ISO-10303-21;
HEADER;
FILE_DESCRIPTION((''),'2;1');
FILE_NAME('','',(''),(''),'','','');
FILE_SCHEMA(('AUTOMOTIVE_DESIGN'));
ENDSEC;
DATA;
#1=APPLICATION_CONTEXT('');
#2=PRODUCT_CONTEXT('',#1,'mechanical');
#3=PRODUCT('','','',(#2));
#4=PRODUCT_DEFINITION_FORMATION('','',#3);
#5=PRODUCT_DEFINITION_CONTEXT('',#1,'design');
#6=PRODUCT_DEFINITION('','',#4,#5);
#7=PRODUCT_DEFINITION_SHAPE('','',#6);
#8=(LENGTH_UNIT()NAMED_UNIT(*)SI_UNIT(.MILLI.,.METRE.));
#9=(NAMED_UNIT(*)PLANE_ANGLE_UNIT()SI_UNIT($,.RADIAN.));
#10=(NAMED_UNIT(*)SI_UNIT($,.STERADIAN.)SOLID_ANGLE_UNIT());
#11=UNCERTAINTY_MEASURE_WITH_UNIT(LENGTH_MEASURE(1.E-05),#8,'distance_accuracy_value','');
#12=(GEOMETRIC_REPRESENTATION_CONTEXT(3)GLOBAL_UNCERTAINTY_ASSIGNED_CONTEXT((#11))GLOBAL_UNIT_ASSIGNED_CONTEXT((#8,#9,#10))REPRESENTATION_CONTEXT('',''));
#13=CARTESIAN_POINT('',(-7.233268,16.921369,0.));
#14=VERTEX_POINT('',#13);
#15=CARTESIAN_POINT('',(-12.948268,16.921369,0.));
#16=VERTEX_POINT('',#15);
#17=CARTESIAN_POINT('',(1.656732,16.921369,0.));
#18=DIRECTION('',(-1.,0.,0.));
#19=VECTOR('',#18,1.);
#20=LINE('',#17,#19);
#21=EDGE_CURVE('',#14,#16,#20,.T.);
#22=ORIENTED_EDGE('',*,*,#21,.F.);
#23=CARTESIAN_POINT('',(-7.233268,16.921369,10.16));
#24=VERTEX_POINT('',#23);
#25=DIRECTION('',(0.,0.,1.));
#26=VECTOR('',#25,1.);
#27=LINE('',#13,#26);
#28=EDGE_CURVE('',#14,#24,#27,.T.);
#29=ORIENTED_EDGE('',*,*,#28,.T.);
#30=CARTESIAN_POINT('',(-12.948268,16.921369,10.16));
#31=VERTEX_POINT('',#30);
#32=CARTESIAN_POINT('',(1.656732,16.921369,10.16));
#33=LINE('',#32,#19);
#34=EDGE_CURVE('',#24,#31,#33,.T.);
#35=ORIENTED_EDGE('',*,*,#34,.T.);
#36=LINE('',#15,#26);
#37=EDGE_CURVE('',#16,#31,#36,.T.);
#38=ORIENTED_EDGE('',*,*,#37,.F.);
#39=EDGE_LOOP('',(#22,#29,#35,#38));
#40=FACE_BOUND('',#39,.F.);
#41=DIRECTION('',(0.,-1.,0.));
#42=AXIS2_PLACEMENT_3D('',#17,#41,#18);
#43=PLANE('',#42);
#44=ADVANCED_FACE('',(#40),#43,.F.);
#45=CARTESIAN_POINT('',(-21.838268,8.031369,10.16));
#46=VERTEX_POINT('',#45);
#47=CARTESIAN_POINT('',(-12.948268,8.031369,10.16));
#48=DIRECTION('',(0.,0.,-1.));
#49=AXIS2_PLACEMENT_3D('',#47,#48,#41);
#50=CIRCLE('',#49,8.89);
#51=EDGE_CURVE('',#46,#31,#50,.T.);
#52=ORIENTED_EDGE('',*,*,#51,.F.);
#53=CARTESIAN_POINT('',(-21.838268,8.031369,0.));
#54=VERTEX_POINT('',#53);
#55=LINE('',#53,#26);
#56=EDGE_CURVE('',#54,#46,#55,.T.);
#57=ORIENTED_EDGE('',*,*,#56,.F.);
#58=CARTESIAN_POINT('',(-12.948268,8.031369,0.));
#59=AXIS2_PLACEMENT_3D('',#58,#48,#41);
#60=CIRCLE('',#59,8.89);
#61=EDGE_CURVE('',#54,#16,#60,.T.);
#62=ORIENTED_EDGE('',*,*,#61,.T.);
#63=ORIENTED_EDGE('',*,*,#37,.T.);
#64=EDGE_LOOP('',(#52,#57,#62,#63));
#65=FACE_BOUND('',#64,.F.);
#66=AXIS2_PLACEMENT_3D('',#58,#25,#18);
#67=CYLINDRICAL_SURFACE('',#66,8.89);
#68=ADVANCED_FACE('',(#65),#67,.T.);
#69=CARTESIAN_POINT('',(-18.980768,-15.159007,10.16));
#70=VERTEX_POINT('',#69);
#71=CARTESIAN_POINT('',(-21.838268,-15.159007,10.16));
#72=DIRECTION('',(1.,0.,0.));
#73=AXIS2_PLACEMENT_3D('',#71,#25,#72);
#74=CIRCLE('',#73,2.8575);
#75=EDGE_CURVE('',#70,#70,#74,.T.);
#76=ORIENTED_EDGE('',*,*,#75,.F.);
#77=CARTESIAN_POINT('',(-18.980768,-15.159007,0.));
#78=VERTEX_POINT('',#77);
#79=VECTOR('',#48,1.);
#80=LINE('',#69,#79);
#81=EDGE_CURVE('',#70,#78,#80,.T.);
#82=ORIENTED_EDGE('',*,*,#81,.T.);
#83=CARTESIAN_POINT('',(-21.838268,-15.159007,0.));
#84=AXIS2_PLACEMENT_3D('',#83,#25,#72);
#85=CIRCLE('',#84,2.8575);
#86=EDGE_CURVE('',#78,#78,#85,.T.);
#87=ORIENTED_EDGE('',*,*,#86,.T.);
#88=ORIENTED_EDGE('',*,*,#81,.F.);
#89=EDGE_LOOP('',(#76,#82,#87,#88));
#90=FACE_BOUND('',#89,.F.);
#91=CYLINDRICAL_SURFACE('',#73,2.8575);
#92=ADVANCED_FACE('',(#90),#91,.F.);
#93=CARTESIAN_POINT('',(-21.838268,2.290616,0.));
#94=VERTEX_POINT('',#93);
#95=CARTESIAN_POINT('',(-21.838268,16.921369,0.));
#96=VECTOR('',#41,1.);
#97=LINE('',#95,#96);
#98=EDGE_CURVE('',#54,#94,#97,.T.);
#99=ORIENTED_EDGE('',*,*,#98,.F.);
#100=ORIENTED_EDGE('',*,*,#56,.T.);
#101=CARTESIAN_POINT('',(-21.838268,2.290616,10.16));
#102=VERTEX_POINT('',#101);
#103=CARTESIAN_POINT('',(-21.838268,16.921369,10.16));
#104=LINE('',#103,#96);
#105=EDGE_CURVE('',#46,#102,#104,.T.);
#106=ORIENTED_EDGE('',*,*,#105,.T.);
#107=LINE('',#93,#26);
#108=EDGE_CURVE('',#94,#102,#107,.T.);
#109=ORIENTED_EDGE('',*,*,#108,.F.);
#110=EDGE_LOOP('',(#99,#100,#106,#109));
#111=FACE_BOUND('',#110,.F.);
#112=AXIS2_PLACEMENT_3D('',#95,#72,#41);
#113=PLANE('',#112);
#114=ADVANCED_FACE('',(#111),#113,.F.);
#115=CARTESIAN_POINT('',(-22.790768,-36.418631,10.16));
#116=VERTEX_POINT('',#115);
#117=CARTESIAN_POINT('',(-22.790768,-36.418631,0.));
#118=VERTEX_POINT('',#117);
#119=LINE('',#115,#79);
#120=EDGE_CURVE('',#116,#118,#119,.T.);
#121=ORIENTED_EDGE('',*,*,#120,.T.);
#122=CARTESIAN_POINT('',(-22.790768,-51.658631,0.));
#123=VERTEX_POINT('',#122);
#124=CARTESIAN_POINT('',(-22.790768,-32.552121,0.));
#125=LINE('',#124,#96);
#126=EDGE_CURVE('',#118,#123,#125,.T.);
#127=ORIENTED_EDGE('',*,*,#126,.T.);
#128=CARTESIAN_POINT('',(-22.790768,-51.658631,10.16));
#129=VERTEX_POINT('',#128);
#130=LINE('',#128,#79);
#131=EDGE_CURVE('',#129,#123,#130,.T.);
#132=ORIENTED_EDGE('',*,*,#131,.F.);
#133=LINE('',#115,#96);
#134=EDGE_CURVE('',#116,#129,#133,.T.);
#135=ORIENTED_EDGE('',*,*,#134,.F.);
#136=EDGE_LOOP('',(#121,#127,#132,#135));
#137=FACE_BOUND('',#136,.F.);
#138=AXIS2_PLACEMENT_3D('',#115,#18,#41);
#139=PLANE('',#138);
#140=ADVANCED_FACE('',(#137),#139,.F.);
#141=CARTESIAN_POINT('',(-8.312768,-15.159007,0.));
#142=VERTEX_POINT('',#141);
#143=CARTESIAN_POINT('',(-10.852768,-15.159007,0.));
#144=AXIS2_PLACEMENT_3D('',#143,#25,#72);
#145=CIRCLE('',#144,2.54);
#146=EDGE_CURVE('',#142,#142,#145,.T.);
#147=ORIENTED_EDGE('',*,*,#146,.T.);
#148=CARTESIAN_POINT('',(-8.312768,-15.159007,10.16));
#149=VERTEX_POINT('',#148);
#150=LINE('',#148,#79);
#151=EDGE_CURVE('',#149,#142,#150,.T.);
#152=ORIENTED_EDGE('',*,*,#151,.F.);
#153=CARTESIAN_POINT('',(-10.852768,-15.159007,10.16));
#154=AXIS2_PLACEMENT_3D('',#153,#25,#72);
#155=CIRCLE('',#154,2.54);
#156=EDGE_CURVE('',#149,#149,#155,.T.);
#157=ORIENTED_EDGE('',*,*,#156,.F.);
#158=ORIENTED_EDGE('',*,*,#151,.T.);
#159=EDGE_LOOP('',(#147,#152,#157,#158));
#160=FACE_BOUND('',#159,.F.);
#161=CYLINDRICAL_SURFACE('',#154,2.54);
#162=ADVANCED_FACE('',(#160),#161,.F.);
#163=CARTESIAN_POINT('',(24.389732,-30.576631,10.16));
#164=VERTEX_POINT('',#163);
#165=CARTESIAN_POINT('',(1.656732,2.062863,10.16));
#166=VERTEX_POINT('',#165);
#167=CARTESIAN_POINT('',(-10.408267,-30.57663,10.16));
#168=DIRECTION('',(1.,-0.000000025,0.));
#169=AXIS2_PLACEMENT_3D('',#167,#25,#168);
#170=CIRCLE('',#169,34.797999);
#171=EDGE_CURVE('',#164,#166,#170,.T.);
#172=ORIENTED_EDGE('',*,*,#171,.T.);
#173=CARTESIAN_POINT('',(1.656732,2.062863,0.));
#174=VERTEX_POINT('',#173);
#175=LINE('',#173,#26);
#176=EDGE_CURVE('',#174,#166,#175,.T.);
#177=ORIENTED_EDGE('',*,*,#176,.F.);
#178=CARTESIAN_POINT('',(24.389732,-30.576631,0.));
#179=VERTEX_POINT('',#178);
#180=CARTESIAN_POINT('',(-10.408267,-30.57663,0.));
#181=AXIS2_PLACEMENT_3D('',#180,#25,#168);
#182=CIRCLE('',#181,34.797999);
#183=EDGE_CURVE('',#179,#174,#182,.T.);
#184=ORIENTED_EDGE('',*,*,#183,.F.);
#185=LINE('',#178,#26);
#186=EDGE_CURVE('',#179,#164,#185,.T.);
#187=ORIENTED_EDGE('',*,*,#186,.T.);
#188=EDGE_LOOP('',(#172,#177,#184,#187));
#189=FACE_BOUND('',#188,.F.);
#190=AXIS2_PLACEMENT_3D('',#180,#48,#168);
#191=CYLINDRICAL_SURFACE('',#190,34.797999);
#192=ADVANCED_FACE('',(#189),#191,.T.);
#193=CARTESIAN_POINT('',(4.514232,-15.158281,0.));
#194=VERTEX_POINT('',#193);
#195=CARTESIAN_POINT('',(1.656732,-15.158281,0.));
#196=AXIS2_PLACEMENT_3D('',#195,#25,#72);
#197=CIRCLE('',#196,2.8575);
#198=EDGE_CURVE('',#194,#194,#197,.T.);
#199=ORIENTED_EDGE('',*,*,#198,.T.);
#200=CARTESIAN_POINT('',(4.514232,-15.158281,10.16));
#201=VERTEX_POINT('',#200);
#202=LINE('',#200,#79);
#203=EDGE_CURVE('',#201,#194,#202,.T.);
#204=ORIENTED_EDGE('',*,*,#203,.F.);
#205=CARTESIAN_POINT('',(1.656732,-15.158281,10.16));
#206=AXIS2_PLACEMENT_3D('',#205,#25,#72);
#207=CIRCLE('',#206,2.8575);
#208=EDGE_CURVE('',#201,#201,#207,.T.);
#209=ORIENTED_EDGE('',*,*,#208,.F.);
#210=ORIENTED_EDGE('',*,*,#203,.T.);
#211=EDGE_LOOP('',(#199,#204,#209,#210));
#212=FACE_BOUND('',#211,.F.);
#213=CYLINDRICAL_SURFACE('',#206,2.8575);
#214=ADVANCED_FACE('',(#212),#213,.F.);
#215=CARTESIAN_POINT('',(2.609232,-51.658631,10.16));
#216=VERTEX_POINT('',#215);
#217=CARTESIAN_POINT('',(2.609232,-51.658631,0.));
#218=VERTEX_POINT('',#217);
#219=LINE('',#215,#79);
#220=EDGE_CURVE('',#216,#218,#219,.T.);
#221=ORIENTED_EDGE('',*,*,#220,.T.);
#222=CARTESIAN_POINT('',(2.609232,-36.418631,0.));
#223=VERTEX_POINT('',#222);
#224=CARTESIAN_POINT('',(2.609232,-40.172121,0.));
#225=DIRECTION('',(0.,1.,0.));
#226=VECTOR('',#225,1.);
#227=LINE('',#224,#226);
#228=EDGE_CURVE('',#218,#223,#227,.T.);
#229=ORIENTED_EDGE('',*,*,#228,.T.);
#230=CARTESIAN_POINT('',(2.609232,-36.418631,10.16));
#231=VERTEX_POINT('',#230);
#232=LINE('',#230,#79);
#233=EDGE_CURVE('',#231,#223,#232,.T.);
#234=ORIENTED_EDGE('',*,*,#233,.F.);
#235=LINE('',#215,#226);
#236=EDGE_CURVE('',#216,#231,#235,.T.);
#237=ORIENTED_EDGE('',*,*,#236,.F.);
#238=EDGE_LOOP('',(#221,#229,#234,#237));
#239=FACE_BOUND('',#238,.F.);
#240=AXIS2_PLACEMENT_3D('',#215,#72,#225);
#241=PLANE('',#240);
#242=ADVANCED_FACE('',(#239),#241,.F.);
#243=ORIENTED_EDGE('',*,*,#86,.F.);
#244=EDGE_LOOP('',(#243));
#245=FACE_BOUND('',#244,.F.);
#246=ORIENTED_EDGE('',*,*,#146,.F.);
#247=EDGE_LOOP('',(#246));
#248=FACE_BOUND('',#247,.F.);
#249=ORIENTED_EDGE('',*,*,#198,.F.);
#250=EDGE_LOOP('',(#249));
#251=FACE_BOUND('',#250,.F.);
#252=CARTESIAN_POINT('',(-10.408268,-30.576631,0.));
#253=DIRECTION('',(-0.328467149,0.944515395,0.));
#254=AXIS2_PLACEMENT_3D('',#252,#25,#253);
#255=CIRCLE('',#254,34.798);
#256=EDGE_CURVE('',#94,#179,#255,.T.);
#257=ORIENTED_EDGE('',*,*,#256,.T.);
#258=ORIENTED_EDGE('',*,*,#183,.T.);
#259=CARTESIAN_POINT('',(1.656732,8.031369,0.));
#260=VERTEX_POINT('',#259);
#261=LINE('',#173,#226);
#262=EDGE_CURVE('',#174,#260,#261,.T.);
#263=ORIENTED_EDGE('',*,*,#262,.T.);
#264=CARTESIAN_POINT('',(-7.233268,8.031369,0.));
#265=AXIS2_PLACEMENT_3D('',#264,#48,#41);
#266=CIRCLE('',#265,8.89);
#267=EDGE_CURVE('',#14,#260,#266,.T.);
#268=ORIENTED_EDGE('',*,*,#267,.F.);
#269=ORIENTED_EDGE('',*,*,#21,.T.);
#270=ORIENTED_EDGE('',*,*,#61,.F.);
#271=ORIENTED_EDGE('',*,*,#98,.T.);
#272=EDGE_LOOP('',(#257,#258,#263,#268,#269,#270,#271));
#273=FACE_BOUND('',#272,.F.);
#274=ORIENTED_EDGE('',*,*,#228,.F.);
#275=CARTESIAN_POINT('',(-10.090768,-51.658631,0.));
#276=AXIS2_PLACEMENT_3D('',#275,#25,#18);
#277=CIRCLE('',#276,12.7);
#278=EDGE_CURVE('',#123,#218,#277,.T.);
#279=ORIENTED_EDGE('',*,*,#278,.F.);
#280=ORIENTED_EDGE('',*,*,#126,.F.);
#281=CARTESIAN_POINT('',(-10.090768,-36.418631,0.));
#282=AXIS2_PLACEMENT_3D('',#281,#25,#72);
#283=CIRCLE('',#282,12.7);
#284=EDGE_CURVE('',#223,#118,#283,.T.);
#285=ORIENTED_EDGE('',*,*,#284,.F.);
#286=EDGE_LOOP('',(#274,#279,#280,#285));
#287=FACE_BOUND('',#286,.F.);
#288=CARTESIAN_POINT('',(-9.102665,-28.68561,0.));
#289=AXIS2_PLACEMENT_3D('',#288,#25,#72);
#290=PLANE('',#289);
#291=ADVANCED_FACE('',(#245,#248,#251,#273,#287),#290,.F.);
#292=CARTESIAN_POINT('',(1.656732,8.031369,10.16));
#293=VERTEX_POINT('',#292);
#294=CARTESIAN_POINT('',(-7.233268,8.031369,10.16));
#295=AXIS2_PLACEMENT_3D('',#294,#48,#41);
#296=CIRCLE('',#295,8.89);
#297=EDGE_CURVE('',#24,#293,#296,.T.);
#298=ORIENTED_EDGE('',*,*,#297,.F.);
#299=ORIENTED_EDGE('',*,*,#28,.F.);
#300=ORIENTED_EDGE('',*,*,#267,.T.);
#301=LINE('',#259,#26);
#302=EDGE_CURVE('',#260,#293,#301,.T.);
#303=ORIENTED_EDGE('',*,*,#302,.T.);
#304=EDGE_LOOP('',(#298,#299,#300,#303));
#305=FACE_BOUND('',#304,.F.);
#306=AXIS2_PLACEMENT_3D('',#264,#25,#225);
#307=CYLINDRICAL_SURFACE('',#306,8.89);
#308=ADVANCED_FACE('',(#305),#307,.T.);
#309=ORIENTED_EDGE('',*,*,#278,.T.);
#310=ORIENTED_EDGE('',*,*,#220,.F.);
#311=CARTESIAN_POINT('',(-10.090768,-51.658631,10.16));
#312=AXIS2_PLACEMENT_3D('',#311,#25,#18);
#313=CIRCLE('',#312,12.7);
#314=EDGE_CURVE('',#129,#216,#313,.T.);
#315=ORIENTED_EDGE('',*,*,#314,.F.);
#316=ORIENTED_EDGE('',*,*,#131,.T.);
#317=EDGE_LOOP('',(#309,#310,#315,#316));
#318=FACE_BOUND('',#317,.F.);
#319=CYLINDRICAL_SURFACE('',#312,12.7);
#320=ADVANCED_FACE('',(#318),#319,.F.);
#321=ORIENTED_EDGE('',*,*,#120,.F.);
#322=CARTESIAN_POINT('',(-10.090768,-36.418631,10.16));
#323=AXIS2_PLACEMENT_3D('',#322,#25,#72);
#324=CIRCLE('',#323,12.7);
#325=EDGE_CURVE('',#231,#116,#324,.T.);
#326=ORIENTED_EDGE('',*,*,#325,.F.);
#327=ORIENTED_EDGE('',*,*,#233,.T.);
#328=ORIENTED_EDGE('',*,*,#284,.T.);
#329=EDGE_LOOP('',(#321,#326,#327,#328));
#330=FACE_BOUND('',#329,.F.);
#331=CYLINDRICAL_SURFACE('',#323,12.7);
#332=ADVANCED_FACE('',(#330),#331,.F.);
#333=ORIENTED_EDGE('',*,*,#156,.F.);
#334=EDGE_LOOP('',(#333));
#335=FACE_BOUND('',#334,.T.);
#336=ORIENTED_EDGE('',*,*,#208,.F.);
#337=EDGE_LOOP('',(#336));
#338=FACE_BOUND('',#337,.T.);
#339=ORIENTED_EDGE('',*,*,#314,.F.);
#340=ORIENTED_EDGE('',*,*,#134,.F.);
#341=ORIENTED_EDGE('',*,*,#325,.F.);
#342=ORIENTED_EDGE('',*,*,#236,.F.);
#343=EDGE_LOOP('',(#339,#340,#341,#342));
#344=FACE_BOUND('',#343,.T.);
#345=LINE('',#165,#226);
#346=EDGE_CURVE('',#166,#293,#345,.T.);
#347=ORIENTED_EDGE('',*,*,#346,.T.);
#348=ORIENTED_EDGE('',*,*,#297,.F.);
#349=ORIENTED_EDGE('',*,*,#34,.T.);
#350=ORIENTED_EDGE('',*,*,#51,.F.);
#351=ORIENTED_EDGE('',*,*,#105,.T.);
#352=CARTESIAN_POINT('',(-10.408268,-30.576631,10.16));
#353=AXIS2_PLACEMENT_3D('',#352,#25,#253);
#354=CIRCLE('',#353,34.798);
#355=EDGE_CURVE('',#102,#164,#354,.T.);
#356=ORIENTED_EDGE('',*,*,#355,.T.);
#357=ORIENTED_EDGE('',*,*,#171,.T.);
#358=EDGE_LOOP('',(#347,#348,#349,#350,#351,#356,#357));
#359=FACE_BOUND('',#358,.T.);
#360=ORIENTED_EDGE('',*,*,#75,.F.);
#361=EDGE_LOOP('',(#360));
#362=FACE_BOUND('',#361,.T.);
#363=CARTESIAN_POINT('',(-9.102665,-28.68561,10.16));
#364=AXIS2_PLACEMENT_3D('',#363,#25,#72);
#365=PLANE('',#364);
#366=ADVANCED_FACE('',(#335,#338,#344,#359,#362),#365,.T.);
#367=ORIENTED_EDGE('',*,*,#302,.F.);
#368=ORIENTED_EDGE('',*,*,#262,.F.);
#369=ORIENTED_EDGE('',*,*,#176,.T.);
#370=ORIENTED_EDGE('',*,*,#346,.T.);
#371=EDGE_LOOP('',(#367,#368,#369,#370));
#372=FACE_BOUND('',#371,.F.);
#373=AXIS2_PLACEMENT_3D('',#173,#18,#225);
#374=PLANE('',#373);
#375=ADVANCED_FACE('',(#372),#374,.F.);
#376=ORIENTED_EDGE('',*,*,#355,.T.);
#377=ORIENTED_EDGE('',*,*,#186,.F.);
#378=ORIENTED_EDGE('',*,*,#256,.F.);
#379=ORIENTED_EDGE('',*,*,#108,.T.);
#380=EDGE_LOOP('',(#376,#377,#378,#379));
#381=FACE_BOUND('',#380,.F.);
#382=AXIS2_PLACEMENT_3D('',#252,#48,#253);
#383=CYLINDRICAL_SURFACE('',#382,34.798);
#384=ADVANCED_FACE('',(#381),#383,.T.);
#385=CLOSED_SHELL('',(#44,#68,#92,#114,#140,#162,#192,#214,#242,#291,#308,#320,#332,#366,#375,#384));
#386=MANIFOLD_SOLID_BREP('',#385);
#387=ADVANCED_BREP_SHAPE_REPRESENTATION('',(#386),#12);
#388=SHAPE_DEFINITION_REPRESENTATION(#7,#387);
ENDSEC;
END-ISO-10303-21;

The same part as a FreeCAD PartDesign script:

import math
import FreeCAD as App
import Part
import Sketcher
from FreeCAD import Vector
Q = App.Units.Quantity


def edges_at(feature, points):
    """Names of the edges that pass closest to the given points."""
    edges = feature.Shape.Edges
    near = lambda p: min(range(len(edges)), key=lambda i: edges[i].distToShape(Part.Vertex(*p))[0])
    return sorted({f"Edge{near(p) + 1}" for p in points})

doc = App.newDocument("Part")
body = doc.addObject("PartDesign::Body", "Body")

# Sketch on XY plane
sketch1 = body.newObject("Sketcher::SketchObject", "Sketch")
sketch1.AttachmentSupport = (doc.getObject("XY_Plane"), [""])
sketch1.MapMode = "FlatFace"
sketch1.addGeometry([
    Part.ArcOfCircle(Part.Circle(Vector(-10, -31, 0), Vector(0, 0, 1), 35), math.radians(109), math.radians(360)),  # 0
    Part.ArcOfCircle(Part.Circle(Vector(-10, -31, 0), Vector(0, 0, 1), 35), math.radians(0), math.radians(70)),  # 1
    Part.LineSegment(Vector(2, 2, 0), Vector(2, 17, 0)),  # 2
    Part.LineSegment(Vector(2, 17, 0), Vector(-22, 17, 0)),  # 3
    Part.LineSegment(Vector(-22, 17, 0), Vector(-22, 2, 0)),  # 4
], False)
sketch1.addConstraint([
    Sketcher.Constraint("Tangent", 0, 2, 1, 1),
    Sketcher.Constraint("Coincident", 1, 2, 2, 1),
    Sketcher.Constraint("Coincident", 2, 2, 3, 1),
    Sketcher.Constraint("Coincident", 3, 2, 4, 1),
    Sketcher.Constraint("Coincident", 4, 2, 0, 1),
    Sketcher.Constraint("Vertical", 2),
    Sketcher.Constraint("Horizontal", 3),
    Sketcher.Constraint("Vertical", 4),
    Sketcher.Constraint("Equal", 0, 1),
    Sketcher.Constraint("Horizontal", 1, 3, 0, 2),
    Sketcher.Constraint("Radius", 0, Q("1.37 in")),
    Sketcher.Constraint("DistanceX", 3, 2, 3, 1, Q("0.925 in")),
    Sketcher.Constraint("DistanceY", 1, 3, 2, 2, Q("1.87 in")),
    Sketcher.Constraint("DistanceX", 3, 2, 1, 3, Q("0.4500001 in")),
    Sketcher.Constraint("DistanceX", 0, 3, -1, 1, 10.408268),
    Sketcher.Constraint("DistanceY", 0, 3, -1, 1, 30.576631),
])
pad1 = body.newObject("PartDesign::Pad", "Pad")
pad1.Profile = sketch1
pad1.Length = Q("0.4 in")

# Sketch on XY plane
sketch2 = body.newObject("Sketcher::SketchObject", "Sketch001")
sketch2.AttachmentSupport = (doc.getObject("XY_Plane"), [""])
sketch2.MapMode = "FlatFace"
sketch2.AttachmentOffset = App.Placement(Vector(0, 0, 0.4 * 25.4), App.Rotation())
sketch2.addGeometry([
    Part.Circle(Vector(-21.8, -15.2, 0), Vector(0, 0, 1), 2.9),  # 0
    Part.Circle(Vector(-10.9, -15.2, 0), Vector(0, 0, 1), 2.5),  # 1
    Part.Circle(Vector(1.7, -15.2, 0), Vector(0, 0, 1), 2.9),  # 2
    Part.LineSegment(Vector(2.6, -51.7, 0), Vector(2.6, -36.4, 0)),  # 3
    Part.ArcOfCircle(Part.Circle(Vector(-10.1, -36.4, 0), Vector(0, 0, 1), 12.7), math.radians(0), math.radians(180)),  # 4
    Part.LineSegment(Vector(-22.8, -36.4, 0), Vector(-22.8, -51.7, 0)),  # 5
    Part.ArcOfCircle(Part.Circle(Vector(-10.1, -51.7, 0), Vector(0, 0, 1), 12.7), math.radians(180), math.radians(360)),  # 6
], False)
sketch2.addConstraint([
    Sketcher.Constraint("Tangent", 3, 2, 4, 1),
    Sketcher.Constraint("Tangent", 4, 2, 5, 1),
    Sketcher.Constraint("Tangent", 5, 2, 6, 1),
    Sketcher.Constraint("Tangent", 6, 2, 3, 1),
    Sketcher.Constraint("Vertical", 3),
    Sketcher.Constraint("Vertical", 5),
    Sketcher.Constraint("Equal", 0, 2),
    Sketcher.Constraint("Horizontal", 0, 3, 1, 3),
    Sketcher.Constraint("Diameter", 1, Q("0.2 in")),
    Sketcher.Constraint("Radius", 4, Q("0.5 in")),
    Sketcher.Constraint("Diameter", 0, Q("0.225 in")),
    Sketcher.Constraint("DistanceY", 3, 1, 3, 2, Q("0.6 in")),
    Sketcher.Constraint("DistanceX", 1, 3, 4, 3, Q("0.03 in")),
    Sketcher.Constraint("DistanceX", 0, 3, 2, 3, Q("0.925 in")),
    Sketcher.Constraint("DistanceX", 0, 3, 1, 3, Q("0.4325 in")),
    Sketcher.Constraint("DistanceY", 2, 3, -1, 1, 15.158281),
    Sketcher.Constraint("DistanceX", 4, 3, -1, 1, 10.090768),
    Sketcher.Constraint("DistanceY", 4, 3, -1, 1, 36.418631),
    Sketcher.Constraint("DistanceY", 0, 3, -1, 1, 15.159007),
])
pocket1 = body.newObject("PartDesign::Pocket", "Pocket")
pocket1.Profile = sketch2
pocket1.Length = Q("1 in")
doc.recompute()

fillet = body.newObject("PartDesign::Fillet", "Fillet")
fillet.Base = (pocket1, edges_at(pocket1, [(-21.838, 16.921, 5.08), (1.657, 16.921, 5.08)]))
fillet.Radius = Q("0.35 in")

doc.recompute()
